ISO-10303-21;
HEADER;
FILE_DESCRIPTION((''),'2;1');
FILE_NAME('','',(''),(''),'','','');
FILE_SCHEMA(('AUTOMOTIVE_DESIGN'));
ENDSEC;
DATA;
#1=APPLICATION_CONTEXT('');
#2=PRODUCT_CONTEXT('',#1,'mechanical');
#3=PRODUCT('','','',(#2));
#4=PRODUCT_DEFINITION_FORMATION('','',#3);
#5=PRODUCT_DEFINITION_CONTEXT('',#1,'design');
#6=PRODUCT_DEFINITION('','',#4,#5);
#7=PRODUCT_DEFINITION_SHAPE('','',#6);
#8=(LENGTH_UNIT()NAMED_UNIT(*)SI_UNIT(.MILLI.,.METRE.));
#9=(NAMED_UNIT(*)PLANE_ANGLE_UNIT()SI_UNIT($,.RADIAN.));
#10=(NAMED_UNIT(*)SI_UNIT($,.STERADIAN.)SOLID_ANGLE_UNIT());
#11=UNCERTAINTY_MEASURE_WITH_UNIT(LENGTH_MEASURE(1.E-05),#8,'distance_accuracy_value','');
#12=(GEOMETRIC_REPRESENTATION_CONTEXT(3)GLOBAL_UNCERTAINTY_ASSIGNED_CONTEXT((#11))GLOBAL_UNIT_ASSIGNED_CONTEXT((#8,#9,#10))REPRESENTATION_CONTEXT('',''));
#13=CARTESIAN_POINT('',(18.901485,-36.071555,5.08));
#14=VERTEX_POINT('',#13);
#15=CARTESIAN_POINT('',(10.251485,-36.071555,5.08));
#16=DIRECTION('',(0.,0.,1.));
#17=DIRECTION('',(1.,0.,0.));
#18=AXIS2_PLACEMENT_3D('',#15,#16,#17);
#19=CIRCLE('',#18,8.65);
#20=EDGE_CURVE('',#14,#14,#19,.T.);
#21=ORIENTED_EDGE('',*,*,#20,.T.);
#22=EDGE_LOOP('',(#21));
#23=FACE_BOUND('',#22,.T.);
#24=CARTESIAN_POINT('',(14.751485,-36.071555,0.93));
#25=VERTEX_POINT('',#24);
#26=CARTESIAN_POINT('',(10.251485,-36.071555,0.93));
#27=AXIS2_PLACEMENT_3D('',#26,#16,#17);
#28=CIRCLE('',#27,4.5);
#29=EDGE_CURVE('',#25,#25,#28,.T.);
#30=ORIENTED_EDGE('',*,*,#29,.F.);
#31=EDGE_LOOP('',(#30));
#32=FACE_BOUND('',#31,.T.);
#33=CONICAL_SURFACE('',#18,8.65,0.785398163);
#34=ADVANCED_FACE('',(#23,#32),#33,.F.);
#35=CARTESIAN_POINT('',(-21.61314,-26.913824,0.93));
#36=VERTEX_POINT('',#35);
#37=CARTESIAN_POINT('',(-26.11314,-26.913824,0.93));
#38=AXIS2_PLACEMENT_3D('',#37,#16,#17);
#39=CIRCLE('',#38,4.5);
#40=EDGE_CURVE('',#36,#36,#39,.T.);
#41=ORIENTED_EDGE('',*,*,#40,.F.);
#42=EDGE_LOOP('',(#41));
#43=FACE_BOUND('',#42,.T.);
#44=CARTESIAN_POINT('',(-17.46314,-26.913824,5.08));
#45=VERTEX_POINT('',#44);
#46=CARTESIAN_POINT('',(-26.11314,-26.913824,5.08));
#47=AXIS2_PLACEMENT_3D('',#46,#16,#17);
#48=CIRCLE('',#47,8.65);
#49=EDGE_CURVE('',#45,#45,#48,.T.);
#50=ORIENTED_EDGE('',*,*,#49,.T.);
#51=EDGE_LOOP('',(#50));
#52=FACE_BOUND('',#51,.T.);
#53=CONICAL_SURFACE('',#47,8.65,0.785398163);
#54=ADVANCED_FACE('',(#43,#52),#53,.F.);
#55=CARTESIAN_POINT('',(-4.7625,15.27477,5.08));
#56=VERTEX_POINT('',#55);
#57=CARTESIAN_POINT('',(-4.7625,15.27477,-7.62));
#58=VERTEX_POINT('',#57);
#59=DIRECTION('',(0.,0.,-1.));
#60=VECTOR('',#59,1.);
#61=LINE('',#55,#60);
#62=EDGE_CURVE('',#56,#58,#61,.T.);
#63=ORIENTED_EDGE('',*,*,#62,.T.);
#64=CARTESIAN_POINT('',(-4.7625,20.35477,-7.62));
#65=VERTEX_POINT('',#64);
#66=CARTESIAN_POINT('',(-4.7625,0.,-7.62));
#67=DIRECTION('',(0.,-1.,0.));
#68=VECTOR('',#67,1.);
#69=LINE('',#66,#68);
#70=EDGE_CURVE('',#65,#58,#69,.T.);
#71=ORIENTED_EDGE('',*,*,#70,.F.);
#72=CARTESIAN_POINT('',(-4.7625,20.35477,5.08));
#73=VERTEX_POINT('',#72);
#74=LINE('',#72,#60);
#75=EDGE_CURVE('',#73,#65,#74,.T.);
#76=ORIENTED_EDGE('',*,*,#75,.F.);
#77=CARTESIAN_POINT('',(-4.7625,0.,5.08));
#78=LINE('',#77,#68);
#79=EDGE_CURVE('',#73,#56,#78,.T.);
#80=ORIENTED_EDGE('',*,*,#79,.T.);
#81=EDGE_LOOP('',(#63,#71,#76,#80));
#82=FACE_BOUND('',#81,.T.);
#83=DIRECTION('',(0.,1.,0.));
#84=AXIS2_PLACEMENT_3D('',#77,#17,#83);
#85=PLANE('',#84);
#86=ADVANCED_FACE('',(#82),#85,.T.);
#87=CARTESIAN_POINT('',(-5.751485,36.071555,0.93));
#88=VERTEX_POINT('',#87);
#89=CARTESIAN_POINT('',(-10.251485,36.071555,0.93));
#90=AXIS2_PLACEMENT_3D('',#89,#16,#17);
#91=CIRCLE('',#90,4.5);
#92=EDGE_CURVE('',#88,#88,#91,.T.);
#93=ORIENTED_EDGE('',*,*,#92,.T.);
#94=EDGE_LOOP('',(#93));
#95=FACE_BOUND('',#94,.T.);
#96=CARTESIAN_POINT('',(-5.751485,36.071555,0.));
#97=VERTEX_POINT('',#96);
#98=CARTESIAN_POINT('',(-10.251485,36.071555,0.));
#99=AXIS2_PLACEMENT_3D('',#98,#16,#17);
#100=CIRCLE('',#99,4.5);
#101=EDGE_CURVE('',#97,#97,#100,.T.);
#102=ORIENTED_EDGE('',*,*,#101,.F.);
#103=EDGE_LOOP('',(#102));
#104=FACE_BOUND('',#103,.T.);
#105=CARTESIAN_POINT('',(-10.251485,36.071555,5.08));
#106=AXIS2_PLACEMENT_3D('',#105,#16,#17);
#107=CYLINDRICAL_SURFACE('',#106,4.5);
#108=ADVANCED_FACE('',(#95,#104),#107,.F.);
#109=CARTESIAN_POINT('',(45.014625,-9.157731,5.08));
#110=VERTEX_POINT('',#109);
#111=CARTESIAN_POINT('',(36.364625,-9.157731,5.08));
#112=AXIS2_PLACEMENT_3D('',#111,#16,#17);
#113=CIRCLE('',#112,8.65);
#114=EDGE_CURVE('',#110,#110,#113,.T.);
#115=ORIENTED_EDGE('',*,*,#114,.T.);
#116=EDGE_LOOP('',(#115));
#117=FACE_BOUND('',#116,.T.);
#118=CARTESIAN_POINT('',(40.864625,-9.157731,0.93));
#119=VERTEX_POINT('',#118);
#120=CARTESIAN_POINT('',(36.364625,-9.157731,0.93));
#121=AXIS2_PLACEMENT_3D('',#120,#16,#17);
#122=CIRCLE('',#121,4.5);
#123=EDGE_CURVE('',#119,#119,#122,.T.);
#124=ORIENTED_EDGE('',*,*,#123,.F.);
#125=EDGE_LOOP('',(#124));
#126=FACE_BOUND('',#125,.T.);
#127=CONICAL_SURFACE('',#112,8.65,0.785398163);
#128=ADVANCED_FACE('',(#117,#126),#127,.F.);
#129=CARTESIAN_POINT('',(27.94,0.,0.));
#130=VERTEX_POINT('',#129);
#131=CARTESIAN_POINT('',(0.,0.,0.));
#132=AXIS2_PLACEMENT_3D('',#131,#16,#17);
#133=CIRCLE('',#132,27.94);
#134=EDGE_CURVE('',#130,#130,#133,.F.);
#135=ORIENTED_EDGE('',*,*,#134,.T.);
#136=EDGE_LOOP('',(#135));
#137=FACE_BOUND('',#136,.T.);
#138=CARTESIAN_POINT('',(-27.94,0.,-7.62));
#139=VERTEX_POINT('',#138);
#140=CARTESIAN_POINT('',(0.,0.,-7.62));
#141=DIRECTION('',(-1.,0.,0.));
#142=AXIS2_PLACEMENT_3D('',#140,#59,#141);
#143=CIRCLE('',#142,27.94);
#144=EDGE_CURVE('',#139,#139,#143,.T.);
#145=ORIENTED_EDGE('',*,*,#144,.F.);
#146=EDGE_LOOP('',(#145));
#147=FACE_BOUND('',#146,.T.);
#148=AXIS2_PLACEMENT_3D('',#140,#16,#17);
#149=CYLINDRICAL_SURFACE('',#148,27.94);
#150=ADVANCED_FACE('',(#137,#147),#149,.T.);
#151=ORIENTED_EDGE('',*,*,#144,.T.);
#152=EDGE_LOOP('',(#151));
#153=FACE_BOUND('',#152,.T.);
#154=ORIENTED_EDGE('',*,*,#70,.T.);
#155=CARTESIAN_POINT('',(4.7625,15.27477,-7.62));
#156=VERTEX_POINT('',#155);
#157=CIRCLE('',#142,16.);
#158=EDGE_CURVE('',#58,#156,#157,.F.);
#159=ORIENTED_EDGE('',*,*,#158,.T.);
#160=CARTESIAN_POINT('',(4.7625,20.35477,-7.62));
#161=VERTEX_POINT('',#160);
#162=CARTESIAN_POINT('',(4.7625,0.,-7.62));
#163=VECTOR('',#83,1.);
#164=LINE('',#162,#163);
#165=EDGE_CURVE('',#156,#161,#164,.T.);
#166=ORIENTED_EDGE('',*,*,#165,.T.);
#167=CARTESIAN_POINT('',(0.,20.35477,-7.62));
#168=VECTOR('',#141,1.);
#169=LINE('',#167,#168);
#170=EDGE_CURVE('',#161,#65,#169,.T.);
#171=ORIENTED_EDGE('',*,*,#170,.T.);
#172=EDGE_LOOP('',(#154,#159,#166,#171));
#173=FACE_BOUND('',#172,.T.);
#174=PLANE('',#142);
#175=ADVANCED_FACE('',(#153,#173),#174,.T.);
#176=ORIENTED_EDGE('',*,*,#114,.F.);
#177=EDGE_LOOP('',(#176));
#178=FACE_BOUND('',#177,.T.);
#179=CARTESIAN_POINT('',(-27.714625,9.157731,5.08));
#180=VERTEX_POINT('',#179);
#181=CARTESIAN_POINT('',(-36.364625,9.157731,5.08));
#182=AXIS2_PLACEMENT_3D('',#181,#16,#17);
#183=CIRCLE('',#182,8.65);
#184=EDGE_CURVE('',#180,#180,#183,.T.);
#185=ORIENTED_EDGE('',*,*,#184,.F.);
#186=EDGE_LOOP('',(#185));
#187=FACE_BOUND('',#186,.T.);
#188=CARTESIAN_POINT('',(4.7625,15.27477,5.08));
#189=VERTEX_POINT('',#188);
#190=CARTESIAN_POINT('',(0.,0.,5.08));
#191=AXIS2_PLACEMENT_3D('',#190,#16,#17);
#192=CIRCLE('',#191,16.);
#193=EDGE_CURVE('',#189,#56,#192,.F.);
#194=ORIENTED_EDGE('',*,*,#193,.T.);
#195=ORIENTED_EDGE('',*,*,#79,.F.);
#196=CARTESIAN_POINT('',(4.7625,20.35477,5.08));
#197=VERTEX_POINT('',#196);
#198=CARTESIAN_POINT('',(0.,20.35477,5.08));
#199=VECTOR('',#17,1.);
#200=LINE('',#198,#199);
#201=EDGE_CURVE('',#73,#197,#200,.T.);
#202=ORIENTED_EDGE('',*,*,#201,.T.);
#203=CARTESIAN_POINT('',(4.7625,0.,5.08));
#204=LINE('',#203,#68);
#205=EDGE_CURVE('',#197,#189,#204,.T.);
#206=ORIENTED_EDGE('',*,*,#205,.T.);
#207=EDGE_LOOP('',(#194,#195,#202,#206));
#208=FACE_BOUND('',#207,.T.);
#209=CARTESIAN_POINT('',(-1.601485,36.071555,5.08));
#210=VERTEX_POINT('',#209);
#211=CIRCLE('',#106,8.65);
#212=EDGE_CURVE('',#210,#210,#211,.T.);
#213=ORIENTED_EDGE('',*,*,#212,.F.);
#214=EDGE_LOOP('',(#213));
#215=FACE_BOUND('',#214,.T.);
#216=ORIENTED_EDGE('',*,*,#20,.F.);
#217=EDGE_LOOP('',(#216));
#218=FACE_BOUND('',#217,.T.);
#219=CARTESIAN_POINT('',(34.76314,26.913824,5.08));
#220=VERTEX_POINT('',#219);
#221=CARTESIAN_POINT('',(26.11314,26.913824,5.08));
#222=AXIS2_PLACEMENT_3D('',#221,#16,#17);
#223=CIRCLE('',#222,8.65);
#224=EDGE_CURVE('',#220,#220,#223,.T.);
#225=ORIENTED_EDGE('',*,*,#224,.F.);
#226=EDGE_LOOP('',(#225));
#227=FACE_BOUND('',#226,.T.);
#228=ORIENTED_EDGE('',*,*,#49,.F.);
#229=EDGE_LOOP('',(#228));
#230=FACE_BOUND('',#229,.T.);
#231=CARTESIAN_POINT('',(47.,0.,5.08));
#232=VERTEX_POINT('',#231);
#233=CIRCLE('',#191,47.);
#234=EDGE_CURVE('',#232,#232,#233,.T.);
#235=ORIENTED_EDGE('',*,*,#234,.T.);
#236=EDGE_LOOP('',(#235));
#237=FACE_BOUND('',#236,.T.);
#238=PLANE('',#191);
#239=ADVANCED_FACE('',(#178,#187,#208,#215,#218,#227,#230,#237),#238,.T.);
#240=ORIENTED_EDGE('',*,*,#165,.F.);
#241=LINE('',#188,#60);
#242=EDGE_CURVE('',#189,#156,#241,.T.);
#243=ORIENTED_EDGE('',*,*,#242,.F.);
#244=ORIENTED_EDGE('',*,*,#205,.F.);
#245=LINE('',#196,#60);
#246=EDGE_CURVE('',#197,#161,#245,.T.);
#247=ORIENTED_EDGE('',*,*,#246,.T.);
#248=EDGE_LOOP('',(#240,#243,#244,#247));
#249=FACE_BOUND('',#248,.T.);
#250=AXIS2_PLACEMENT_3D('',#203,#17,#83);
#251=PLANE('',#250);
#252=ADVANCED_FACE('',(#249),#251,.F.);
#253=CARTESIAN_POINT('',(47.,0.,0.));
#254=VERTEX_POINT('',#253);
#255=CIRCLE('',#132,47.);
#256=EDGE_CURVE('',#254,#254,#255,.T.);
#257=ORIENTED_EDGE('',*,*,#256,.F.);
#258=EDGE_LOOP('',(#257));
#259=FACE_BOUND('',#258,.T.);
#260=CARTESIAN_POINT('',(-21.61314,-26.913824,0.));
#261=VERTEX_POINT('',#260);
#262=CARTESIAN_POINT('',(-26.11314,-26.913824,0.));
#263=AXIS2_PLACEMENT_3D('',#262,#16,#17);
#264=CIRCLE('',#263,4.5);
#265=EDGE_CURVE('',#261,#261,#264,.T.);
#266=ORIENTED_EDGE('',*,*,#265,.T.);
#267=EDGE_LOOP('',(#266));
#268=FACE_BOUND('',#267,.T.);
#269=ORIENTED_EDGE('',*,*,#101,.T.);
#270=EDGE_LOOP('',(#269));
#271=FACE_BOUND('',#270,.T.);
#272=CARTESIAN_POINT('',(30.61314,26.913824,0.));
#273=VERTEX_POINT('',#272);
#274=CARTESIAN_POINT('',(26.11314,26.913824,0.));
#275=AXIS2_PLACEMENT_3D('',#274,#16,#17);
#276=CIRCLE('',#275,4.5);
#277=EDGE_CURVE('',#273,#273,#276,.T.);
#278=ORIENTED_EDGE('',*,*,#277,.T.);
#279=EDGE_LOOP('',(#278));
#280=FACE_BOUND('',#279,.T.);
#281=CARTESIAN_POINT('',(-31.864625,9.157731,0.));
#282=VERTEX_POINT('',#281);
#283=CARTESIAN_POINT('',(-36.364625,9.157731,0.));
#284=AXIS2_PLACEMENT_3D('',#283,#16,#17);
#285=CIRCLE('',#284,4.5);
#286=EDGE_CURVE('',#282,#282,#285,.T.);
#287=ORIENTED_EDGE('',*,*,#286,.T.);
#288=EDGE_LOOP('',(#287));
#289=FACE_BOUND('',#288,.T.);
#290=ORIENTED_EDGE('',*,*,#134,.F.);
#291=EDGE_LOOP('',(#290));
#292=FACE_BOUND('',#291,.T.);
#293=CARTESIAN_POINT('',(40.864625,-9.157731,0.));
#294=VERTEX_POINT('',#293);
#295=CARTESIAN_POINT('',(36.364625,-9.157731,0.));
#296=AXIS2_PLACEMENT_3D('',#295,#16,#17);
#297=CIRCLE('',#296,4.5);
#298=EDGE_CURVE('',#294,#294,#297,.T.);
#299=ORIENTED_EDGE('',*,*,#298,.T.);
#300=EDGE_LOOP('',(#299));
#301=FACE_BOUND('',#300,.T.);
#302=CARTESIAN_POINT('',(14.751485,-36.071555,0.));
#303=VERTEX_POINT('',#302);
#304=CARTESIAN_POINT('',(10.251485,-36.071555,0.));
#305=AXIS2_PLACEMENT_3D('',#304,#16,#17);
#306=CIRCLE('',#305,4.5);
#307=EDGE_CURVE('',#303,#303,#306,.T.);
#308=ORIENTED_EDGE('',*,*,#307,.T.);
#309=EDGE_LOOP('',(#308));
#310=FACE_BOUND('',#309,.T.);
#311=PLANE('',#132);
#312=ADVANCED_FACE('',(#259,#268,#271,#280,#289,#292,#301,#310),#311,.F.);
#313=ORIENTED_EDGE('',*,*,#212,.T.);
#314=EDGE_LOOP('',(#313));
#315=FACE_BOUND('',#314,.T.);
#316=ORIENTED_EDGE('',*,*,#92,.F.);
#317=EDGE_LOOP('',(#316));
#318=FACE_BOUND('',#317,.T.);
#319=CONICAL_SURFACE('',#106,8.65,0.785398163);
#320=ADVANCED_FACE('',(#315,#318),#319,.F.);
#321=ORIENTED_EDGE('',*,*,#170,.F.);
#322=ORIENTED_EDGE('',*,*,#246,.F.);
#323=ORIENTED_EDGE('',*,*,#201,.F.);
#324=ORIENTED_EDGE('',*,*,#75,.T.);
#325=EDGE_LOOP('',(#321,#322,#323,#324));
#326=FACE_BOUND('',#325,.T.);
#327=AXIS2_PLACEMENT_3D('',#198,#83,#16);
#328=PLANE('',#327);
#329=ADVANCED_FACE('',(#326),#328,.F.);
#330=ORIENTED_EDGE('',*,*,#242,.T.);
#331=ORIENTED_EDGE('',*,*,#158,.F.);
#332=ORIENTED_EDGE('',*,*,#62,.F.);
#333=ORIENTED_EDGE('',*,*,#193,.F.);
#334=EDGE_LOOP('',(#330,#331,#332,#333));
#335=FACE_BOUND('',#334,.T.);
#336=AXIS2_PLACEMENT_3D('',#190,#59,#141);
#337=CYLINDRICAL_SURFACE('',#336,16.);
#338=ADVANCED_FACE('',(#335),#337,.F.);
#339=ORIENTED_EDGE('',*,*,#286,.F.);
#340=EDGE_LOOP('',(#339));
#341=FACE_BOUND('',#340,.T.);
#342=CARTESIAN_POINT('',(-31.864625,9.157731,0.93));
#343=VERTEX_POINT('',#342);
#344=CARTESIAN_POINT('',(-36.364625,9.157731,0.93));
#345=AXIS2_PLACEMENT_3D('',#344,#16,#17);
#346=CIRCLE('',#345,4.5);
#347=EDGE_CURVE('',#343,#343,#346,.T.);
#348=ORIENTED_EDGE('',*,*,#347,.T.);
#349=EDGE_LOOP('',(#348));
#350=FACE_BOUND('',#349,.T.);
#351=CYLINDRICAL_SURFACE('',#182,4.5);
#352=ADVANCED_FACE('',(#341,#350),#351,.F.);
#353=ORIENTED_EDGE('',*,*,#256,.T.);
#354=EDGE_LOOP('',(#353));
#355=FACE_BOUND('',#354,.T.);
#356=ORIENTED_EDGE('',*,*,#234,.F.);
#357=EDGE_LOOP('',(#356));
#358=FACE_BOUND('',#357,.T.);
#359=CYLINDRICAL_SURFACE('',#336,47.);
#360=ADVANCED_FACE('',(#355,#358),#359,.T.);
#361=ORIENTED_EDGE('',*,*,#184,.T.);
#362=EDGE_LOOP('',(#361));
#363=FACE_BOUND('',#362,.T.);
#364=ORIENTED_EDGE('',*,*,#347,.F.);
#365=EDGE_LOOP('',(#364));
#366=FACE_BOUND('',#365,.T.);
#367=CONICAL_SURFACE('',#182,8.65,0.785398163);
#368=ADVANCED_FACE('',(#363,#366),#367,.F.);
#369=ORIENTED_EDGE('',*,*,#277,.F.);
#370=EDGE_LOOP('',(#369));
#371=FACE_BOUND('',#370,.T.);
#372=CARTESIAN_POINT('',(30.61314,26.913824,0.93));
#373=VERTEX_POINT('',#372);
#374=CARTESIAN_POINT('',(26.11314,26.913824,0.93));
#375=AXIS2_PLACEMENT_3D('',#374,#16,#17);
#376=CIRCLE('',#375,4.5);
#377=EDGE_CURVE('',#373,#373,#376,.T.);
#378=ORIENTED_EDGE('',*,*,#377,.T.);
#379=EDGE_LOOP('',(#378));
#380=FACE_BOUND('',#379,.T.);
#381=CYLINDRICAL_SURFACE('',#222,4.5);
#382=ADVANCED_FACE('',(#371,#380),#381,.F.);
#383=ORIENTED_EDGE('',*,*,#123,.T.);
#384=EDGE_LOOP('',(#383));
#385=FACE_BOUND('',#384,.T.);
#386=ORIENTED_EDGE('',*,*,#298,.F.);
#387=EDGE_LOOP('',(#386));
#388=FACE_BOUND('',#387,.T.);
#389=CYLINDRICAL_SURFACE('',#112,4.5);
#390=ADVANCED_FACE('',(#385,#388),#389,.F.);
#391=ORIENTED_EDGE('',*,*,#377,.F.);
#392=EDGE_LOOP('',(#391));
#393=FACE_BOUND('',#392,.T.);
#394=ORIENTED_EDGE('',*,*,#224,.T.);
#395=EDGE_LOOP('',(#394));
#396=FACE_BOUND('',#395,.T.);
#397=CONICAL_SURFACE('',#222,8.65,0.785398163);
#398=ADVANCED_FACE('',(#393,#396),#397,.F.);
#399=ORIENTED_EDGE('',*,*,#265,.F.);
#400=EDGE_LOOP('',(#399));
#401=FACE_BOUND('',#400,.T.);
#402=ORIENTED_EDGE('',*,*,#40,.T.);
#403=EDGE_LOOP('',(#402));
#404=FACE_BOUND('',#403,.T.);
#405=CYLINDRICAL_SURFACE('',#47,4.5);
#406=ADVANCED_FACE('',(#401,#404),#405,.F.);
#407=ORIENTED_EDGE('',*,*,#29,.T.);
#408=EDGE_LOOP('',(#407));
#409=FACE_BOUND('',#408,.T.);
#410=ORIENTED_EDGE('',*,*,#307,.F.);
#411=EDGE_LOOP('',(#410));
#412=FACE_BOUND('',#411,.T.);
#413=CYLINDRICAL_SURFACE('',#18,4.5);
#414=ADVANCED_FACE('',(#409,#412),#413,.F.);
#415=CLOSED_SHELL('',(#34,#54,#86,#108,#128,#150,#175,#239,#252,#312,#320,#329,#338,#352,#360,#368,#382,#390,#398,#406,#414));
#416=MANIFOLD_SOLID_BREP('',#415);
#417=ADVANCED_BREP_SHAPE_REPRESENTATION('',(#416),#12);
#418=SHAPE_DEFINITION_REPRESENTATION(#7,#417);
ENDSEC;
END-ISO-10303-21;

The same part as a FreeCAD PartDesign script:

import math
import FreeCAD as App
import Part
import Sketcher

V = App.Vector
Q = App.Units.Quantity


def add_polygon(sketch, points):
    """Adds a closed chain of lines whose ends are joined by coincident constraints."""
    first, n = sketch.GeometryCount, len(points)
    for a, b in zip(points, points[1:] + points[:1]):
        sketch.addGeometry(Part.LineSegment(App.Vector(*a, 0), App.Vector(*b, 0)), False)
    for i in range(n):
        sketch.addConstraint(Sketcher.Constraint("Coincident", first + i, 2, first + (i + 1) % n, 1))

doc = App.newDocument("Part")
body = doc.addObject("PartDesign::Body", "Body")

# Sketch on XY plane
sketch1 = doc.addObject("Sketcher::SketchObject", "Sketch")
body.addObject(sketch1)
sketch1.AttachmentSupport = (doc.XY_Plane, [""])
sketch1.MapMode = "FlatFace"
sketch1.addGeometry([
    Part.Circle(V(0, 0, 0), V(0, 0, 1), 47),  # 0
    Part.LineSegment(V(-4.7625, 15.27477, 0), V(-4.7625, 20.35477, 0)),  # 1
    Part.LineSegment(V(-4.7625, 20.35477, 0), V(4.7625, 20.35477, 0)),  # 2
    Part.LineSegment(V(4.7625, 20.35477, 0), V(4.7625, 15.27477, 0)),  # 3
    Part.ArcOfCircle(Part.Circle(V(0, 0, 0), V(0, 0, 1), 16), math.radians(107.316886), math.radians(432.683114)),  # 4
], False)
sketch1.addConstraint([
    Sketcher.Constraint("Coincident", 1, 2, 2, 1),
    Sketcher.Constraint("Coincident", 2, 2, 3, 1),
    Sketcher.Constraint("Coincident", 3, 2, 4, 2),
    Sketcher.Constraint("Coincident", 4, 1, 1, 1),
    Sketcher.Constraint("Vertical", 1),
    Sketcher.Constraint("Horizontal", 2),
    Sketcher.Constraint("Vertical", 3),
    Sketcher.Constraint("Coincident", 0, 3, -1, 1),
    Sketcher.Constraint("Coincident", 4, 3, -1, 1),
    Sketcher.Constraint("Horizontal", 3, 2, 4, 1),
    Sketcher.Constraint("DistanceY", 1, 1, 1, 2, Q("0.2 in")),
    Sketcher.Constraint("Diameter", 0, 94.0),
    Sketcher.Constraint("DistanceX", 2, 1, 2, 2, Q("0.375 in")),
    Sketcher.Constraint("Radius", 4, 16.0),
])
pad1 = doc.addObject("PartDesign::Pad", "Pad")
body.addObject(pad1)
pad1.Profile = sketch1
pad1.Length = Q("0.2 in")

# Sketch on YZ plane
sketch2 = doc.addObject("Sketcher::SketchObject", "Sketch001")
body.addObject(sketch2)
sketch2.AttachmentSupport = (doc.YZ_Plane, [""])
sketch2.MapMode = "FlatFace"
sketch2.AttachmentOffset = App.Placement(V(0, 0, -10.251485), App.Rotation())
add_polygon(sketch2, [(36.071555, 0), (36.071555, 5.08), (27.421555, 5.08), (31.571555, 0.93), (31.571555, 0)])  # lines 0-4
sketch2.addGeometry(Part.LineSegment(V(36.071555, 5.08, 0), V(36.071555, 0, 0)), True)  # axis
sketch2.addConstraint([
    Sketcher.Constraint("Vertical", 0),
    Sketcher.Constraint("Horizontal", 1),
    Sketcher.Constraint("Vertical", 3),
    Sketcher.Constraint("Horizontal", 4),
    Sketcher.Constraint("Vertical", 5),
    Sketcher.Constraint("Coincident", 5, 1, 0, 2),
    Sketcher.Constraint("PointOnObject", 3, 2, -1),
    Sketcher.Constraint("PointOnObject", 5, 2, -1),
    Sketcher.Constraint("DistanceY", 0, 1, 0, 2, Q("0.2 in")),
    Sketcher.Constraint("Angle", 2, Q("-45 deg")),
    Sketcher.Constraint("DistanceX", 1, 2, 1, 1, 8.65),
    Sketcher.Constraint("DistanceX", 4, 1, 4, 2, 4.5),
    Sketcher.Constraint("DistanceX", -1, 1, 0, 2, 36.071555),
])
groove = doc.addObject("PartDesign::Groove", "Groove")
body.addObject(groove)
groove.Profile = sketch2
groove.ReferenceAxis = (sketch2, ["Axis0"])
groove.Angle = 360
doc.recompute()

datumline = doc.addObject("PartDesign::Line", "DatumLine")
body.addObject(datumline)
datumline.Placement = App.Placement(V(0, 0, 0), App.Rotation(V(0, 0, 1), V(0.969723336, -0.244206166, 0)))
linearpattern = doc.addObject("PartDesign::LinearPattern", "LinearPattern")
body.addObject(linearpattern)
linearpattern.Originals = [groove]
linearpattern.Direction = (datumline, [""])
linearpattern.Mode = "offset"
linearpattern.Offset = 37.5
linearpattern.Occurrences = 2
body.Tip = linearpattern
doc.recompute()

datumline2 = doc.addObject("PartDesign::Line", "DatumLine001")
body.addObject(datumline2)
datumline2.Placement = App.Placement(V(0, 0, 0), App.Rotation(V(0, 0, 1), V(-0.696350411, -0.717701961, 0)))
linearpattern2 = doc.addObject("PartDesign::LinearPattern", "LinearPattern001")
body.addObject(linearpattern2)
linearpattern2.Originals = [groove]
linearpattern2.Direction = (datumline2, [""])
linearpattern2.Mode = "offset"
linearpattern2.Offset = 37.5
linearpattern2.Occurrences = 2
body.Tip = linearpattern2
doc.recompute()

datumline3 = doc.addObject("PartDesign::Line", "DatumLine002")
body.addObject(datumline3)
datumline3.Placement = App.Placement(V(0, 0, 0), App.Rotation(V(0, 0, 1), V(0.717701961, -0.696350411, 0)))
linearpattern3 = doc.addObject("PartDesign::LinearPattern", "LinearPattern002")
body.addObject(linearpattern3)
linearpattern3.Originals = [groove]
linearpattern3.Direction = (datumline3, [""])
linearpattern3.Mode = "offset"
linearpattern3.Offset = 64.951905
linearpattern3.Occurrences = 2
body.Tip = linearpattern3
doc.recompute()

datumline4 = doc.addObject("PartDesign::Line", "DatumLine003")
body.addObject(datumline4)
datumline4.Placement = App.Placement(V(0, 0, 0), App.Rotation(V(0, 0, 1), V(0.273372925, -0.961908127, 0)))
linearpattern4 = doc.addObject("PartDesign::LinearPattern", "LinearPattern003")
body.addObject(linearpattern4)
linearpattern4.Originals = [groove]
linearpattern4.Direction = (datumline4, [""])
linearpattern4.Mode = "offset"
linearpattern4.Offset = 75
linearpattern4.Occurrences = 2
body.Tip = linearpattern4
doc.recompute()

datumline5 = doc.addObject("PartDesign::Line", "DatumLine004")
body.addObject(datumline5)
datumline5.Placement = App.Placement(V(0, 0, 0), App.Rotation(V(0, 0, 1), V(-0.244206166, -0.969723336, 0)))
linearpattern5 = doc.addObject("PartDesign::LinearPattern", "LinearPattern004")
body.addObject(linearpattern5)
linearpattern5.Originals = [groove]
linearpattern5.Direction = (datumline5, [""])
linearpattern5.Mode = "offset"
linearpattern5.Offset = 64.951905
linearpattern5.Occurrences = 2
body.Tip = linearpattern5

# Sketch on XY plane
sketch3 = doc.addObject("Sketcher::SketchObject", "Sketch002")
body.addObject(sketch3)
sketch3.AttachmentSupport = (doc.XY_Plane, [""])
sketch3.MapMode = "FlatFace"
sketch3.addGeometry([
    Part.Circle(V(0, 0, 0), V(0, 0, 1), 27.94),  # 0
    Part.LineSegment(V(-4.7625, 20.35477, 0), V(-4.7625, 15.27477, 0)),  # 1
    Part.ArcOfCircle(Part.Circle(V(0, 0, 0), V(0, 0, 1), 16), math.radians(107.316886), math.radians(432.683114)),  # 2
    Part.LineSegment(V(4.7625, 15.27477, 0), V(4.7625, 20.35477, 0)),  # 3
    Part.LineSegment(V(4.7625, 20.35477, 0), V(-4.7625, 20.35477, 0)),  # 4
], False)
sketch3.addConstraint([
    Sketcher.Constraint("Coincident", 1, 2, 2, 1),
    Sketcher.Constraint("Coincident", 2, 2, 3, 1),
    Sketcher.Constraint("Coincident", 3, 2, 4, 1),
    Sketcher.Constraint("Coincident", 4, 2, 1, 1),
    Sketcher.Constraint("Vertical", 1),
    Sketcher.Constraint("Vertical", 3),
    Sketcher.Constraint("Horizontal", 4),
    Sketcher.Constraint("Coincident", 0, 3, -1, 1),
    Sketcher.Constraint("Coincident", 2, 3, -1, 1),
    Sketcher.Constraint("Horizontal", 1, 2, 2, 2),
    Sketcher.Constraint("Diameter", 0, Q("2.2 in")),
    Sketcher.Constraint("DistanceY", 1, 2, 1, 1, Q("0.2 in")),
    Sketcher.Constraint("DistanceX", 4, 2, 4, 1, Q("0.375 in")),
    Sketcher.Constraint("Radius", 2, 16.0),
])
pad2 = doc.addObject("PartDesign::Pad", "Pad001")
body.addObject(pad2)
pad2.Profile = sketch3
pad2.Length = Q("0.3 in")
pad2.Reversed = True

doc.recompute()
